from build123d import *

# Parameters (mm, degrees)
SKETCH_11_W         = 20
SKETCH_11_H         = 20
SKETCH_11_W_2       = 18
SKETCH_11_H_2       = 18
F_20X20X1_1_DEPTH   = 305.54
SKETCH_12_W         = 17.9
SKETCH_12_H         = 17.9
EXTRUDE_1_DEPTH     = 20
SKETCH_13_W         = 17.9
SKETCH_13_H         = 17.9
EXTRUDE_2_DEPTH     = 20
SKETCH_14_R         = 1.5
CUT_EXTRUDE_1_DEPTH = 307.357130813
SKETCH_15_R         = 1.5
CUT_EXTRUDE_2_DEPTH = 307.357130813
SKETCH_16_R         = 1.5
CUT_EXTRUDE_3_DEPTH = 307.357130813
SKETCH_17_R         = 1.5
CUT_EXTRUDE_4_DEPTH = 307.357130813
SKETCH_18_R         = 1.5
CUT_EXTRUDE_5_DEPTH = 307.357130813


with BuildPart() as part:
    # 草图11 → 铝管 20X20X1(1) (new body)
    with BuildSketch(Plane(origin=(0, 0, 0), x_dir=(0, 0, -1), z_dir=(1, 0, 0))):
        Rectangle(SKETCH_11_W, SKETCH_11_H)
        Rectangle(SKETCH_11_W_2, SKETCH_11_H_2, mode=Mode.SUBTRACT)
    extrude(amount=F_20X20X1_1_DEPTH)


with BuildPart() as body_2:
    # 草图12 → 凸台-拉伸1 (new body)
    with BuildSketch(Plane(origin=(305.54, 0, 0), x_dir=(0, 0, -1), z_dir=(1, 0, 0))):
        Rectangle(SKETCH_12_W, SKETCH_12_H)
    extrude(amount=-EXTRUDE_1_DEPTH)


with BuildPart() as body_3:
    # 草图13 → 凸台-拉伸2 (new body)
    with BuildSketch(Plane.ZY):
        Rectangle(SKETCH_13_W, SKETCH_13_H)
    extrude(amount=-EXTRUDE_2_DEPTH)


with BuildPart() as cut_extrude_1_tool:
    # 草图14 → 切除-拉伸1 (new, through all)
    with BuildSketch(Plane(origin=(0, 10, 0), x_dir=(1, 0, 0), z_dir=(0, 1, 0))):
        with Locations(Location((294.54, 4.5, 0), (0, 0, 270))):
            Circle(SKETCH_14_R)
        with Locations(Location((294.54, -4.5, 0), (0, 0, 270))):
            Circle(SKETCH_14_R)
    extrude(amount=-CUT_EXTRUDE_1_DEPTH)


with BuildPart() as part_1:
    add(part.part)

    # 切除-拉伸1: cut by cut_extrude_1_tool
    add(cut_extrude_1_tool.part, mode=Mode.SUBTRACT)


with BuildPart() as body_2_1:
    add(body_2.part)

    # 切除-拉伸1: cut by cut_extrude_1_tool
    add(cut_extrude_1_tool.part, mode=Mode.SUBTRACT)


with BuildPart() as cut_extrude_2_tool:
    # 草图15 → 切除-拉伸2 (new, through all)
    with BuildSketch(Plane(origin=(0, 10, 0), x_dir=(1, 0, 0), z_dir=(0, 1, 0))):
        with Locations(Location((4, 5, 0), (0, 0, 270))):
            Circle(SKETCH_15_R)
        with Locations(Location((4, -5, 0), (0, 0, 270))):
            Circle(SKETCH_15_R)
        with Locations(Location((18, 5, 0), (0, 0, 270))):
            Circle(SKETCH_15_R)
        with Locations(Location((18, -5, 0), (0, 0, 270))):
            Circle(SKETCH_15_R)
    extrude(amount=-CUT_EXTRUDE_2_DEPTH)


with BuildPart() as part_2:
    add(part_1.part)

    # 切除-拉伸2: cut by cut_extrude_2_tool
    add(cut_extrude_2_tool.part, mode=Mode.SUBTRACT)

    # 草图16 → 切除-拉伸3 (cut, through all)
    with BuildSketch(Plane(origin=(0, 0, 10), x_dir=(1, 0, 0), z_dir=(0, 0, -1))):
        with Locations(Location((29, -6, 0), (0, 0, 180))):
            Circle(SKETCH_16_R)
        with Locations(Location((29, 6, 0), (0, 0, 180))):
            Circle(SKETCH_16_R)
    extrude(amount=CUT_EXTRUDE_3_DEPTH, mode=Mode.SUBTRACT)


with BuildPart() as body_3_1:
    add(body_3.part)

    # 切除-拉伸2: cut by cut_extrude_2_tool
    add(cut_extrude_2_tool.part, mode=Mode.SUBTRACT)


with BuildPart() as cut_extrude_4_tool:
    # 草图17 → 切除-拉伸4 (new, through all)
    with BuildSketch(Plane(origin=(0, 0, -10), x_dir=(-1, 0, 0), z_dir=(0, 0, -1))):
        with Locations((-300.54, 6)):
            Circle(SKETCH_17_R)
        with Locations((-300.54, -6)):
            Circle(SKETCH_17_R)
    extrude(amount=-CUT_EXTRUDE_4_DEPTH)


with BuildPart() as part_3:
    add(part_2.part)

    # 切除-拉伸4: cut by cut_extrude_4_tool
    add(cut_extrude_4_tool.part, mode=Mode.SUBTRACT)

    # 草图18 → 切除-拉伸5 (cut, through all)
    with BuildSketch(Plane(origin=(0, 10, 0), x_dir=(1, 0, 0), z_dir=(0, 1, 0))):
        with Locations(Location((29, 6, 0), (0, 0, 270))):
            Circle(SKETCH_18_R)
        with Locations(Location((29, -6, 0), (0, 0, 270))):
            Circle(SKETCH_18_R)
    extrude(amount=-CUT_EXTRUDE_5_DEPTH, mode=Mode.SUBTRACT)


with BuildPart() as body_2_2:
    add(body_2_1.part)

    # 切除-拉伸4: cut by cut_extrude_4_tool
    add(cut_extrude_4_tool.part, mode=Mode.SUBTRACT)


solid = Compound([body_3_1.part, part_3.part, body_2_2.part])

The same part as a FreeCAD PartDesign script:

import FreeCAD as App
import Part
import Sketcher

V = App.Vector

doc = App.newDocument("Part")
params = doc.addObject("Spreadsheet::Sheet", "Params")
for row, (alias, value) in enumerate([
    ("sketch1_width", "20 mm"),
    ("sketch1_width2", "18 mm"),
    ("pad1_length", "305.54 mm"),
    ("sketch2_width", "17.9 mm"),
    ("pad2_length", "20 mm"),
    ("sketch3_width", "17.9 mm"),
    ("pad3_length", "20 mm"),
    ("sketch4_diameter", "3 mm"),
    ("pad4_length", "307.357131 mm"),
    ("sketch5_diameter", "3 mm"),
    ("pad5_length", "307.357131 mm"),
    ("sketch6_diameter", "3 mm"),
    ("sketch7_diameter", "3 mm"),
    ("pad6_length", "307.357131 mm"),
    ("sketch8_diameter", "3 mm"),
], start=1):
    params.set(f"A{row}", alias)
    params.set(f"B{row}", "=" + value)
    params.setAlias(f"B{row}", alias)

body = doc.addObject("PartDesign::Body", "Body")

# Sketch on YZ plane
sketch1 = doc.addObject("Sketcher::SketchObject", "Sketch")
body.addObject(sketch1)
sketch1.AttachmentSupport = (doc.YZ_Plane, [""])
sketch1.MapMode = "FlatFace"
sketch1.addGeometry(Part.LineSegment(V(10, 10, 0), V(-10, 10, 0)), False)
sketch1.addGeometry(Part.LineSegment(V(-10, 10, 0), V(-10, -10, 0)), False)
sketch1.addGeometry(Part.LineSegment(V(-10, -10, 0), V(10, -10, 0)), False)
sketch1.addGeometry(Part.LineSegment(V(10, -10, 0), V(10, 10, 0)), False)
sketch1.addGeometry(Part.LineSegment(V(-9, -9, 0), V(-9, 9, 0)), False)
sketch1.addGeometry(Part.LineSegment(V(-9, 9, 0), V(9, 9, 0)), False)
sketch1.addGeometry(Part.LineSegment(V(9, 9, 0), V(9, -9, 0)), False)
sketch1.addGeometry(Part.LineSegment(V(9, -9, 0), V(-9, -9, 0)), False)
sketch1.addConstraint(Sketcher.Constraint("Coincident", 0, 2, 1, 1))
sketch1.addConstraint(Sketcher.Constraint("Coincident", 1, 2, 2, 1))
sketch1.addConstraint(Sketcher.Constraint("Coincident", 2, 2, 3, 1))
sketch1.addConstraint(Sketcher.Constraint("Coincident", 3, 2, 0, 1))
sketch1.addConstraint(Sketcher.Constraint("Coincident", 4, 2, 5, 1))
sketch1.addConstraint(Sketcher.Constraint("Coincident", 5, 2, 6, 1))
sketch1.addConstraint(Sketcher.Constraint("Coincident", 6, 2, 7, 1))
sketch1.addConstraint(Sketcher.Constraint("Coincident", 7, 2, 4, 1))
sketch1.addConstraint(Sketcher.Constraint("Horizontal", 0))
sketch1.addConstraint(Sketcher.Constraint("Vertical", 1))
sketch1.addConstraint(Sketcher.Constraint("Horizontal", 2))
sketch1.addConstraint(Sketcher.Constraint("Vertical", 3))
sketch1.addConstraint(Sketcher.Constraint("Vertical", 4))
sketch1.addConstraint(Sketcher.Constraint("Horizontal", 5))
sketch1.addConstraint(Sketcher.Constraint("Vertical", 6))
sketch1.addConstraint(Sketcher.Constraint("Horizontal", 7))
sketch1.addConstraint(Sketcher.Constraint("Symmetric", 0, 2, 2, 2, -1, 1))
sketch1.addConstraint(Sketcher.Constraint("Symmetric", 4, 2, 6, 2, -1, 1))
sketch1.addConstraint(Sketcher.Constraint("Equal", 2, 1))
sketch1.addConstraint(Sketcher.Constraint("Equal", 7, 4))
sketch1.addConstraint(Sketcher.Constraint("DistanceX", 0, 2, 0, 1, 20.0))
sketch1.addConstraint(Sketcher.Constraint("DistanceX", 5, 1, 5, 2, 18.0))
sketch1.setExpression("Constraints[20]", "Params.sketch1_width")
sketch1.setExpression("Constraints[21]", "Params.sketch1_width2")
pad1 = doc.addObject("PartDesign::Pad", "Pad")
body.addObject(pad1)
pad1.Profile = sketch1
pad1.setExpression("Length", "Params.pad1_length")
body2 = doc.addObject("PartDesign::Body", "Body001")

# Sketch on YZ plane
sketch2 = doc.addObject("Sketcher::SketchObject", "Sketch001")
body2.addObject(sketch2)
sketch2.AttachmentSupport = (doc.getObject("YZ_Plane001"), [""])
sketch2.MapMode = "FlatFace"
sketch2.AttachmentOffset = App.Placement(V(0, 0, 305.54), App.Rotation())
sketch2.addGeometry(Part.LineSegment(V(9, 9, 0), V(-9, 9, 0)), False)
sketch2.addGeometry(Part.LineSegment(V(-9, 9, 0), V(-9, -9, 0)), False)
sketch2.addGeometry(Part.LineSegment(V(-9, -9, 0), V(9, -9, 0)), False)
sketch2.addGeometry(Part.LineSegment(V(9, -9, 0), V(9, 9, 0)), False)
sketch2.addConstraint(Sketcher.Constraint("Coincident", 0, 2, 1, 1))
sketch2.addConstraint(Sketcher.Constraint("Coincident", 1, 2, 2, 1))
sketch2.addConstraint(Sketcher.Constraint("Coincident", 2, 2, 3, 1))
sketch2.addConstraint(Sketcher.Constraint("Coincident", 3, 2, 0, 1))
sketch2.addConstraint(Sketcher.Constraint("Horizontal", 0))
sketch2.addConstraint(Sketcher.Constraint("Vertical", 1))
sketch2.addConstraint(Sketcher.Constraint("Horizontal", 2))
sketch2.addConstraint(Sketcher.Constraint("Vertical", 3))
sketch2.addConstraint(Sketcher.Constraint("Symmetric", 0, 2, 2, 2, -1, 1))
sketch2.addConstraint(Sketcher.Constraint("Equal", 2, 1))
sketch2.addConstraint(Sketcher.Constraint("DistanceX", 0, 2, 0, 1, 17.9))
sketch2.setExpression("Constraints[10]", "Params.sketch2_width")
pad2 = doc.addObject("PartDesign::Pad", "Pad001")
body2.addObject(pad2)
pad2.Profile = sketch2
pad2.setExpression("Length", "Params.pad2_length")
pad2.Reversed = True
body3 = doc.addObject("PartDesign::Body", "Body002")

# Sketch on YZ plane
sketch3 = doc.addObject("Sketcher::SketchObject", "Sketch002")
body3.addObject(sketch3)
sketch3.AttachmentSupport = (doc.getObject("YZ_Plane002"), [""])
sketch3.MapMode = "FlatFace"
sketch3.addGeometry(Part.LineSegment(V(9, -9, 0), V(-9, -9, 0)), False)
sketch3.addGeometry(Part.LineSegment(V(-9, -9, 0), V(-9, 9, 0)), False)
sketch3.addGeometry(Part.LineSegment(V(-9, 9, 0), V(9, 9, 0)), False)
sketch3.addGeometry(Part.LineSegment(V(9, 9, 0), V(9, -9, 0)), False)
sketch3.addConstraint(Sketcher.Constraint("Coincident", 0, 2, 1, 1))
sketch3.addConstraint(Sketcher.Constraint("Coincident", 1, 2, 2, 1))
sketch3.addConstraint(Sketcher.Constraint("Coincident", 2, 2, 3, 1))
sketch3.addConstraint(Sketcher.Constraint("Coincident", 3, 2, 0, 1))
sketch3.addConstraint(Sketcher.Constraint("Horizontal", 0))
sketch3.addConstraint(Sketcher.Constraint("Vertical", 1))
sketch3.addConstraint(Sketcher.Constraint("Horizontal", 2))
sketch3.addConstraint(Sketcher.Constraint("Vertical", 3))
sketch3.addConstraint(Sketcher.Constraint("Symmetric", 0, 2, 2, 2, -1, 1))
sketch3.addConstraint(Sketcher.Constraint("Equal", 2, 1))
sketch3.addConstraint(Sketcher.Constraint("DistanceX", 0, 2, 0, 1, 17.9))
sketch3.setExpression("Constraints[10]", "Params.sketch3_width")
pad3 = doc.addObject("PartDesign::Pad", "Pad002")
body3.addObject(pad3)
pad3.Profile = sketch3
pad3.setExpression("Length", "Params.pad3_length")
body4 = doc.addObject("PartDesign::Body", "Body003")
body4.AllowCompound = True

# Sketch on XZ plane
sketch4 = doc.addObject("Sketcher::SketchObject", "Sketch003")
body4.addObject(sketch4)
sketch4.AttachmentSupport = (doc.getObject("XZ_Plane003"), [""])
sketch4.MapMode = "FlatFace"
sketch4.AttachmentOffset = App.Placement(V(0, 0, -10), App.Rotation())
sketch4.addGeometry(Part.Circle(V(294.5, -4.5, 0), V(0, 0, 1), 1.5), False)
sketch4.addGeometry(Part.Circle(V(294.5, 4.5, 0), V(0, 0, 1), 1.5), False)
sketch4.addConstraint(Sketcher.Constraint("Equal", 0, 1))
sketch4.addConstraint(Sketcher.Constraint("Symmetric", 0, 3, 1, 3, -1))
sketch4.addConstraint(Sketcher.Constraint("Diameter", 0, 3.0))
sketch4.addConstraint(Sketcher.Constraint("DistanceY", 0, 3, 1, 3, 9.0))
sketch4.addConstraint(Sketcher.Constraint("DistanceX", -1, 1, 0, 3, 294.54))
sketch4.setExpression("Constraints[2]", "Params.sketch4_diameter")
pad4 = doc.addObject("PartDesign::Pad", "Pad003")
body4.addObject(pad4)
pad4.Profile = sketch4
pad4.setExpression("Length", "Params.pad4_length")
doc.recompute()

body5 = doc.addObject("PartDesign::Body", "Body004")
body5.BaseFeature = body4
boolean = doc.addObject("PartDesign::Boolean", "Boolean")
body.addObject(boolean)
boolean.Type = "Cut"
boolean.addObjects([body5])
doc.recompute()

boolean2 = doc.addObject("PartDesign::Boolean", "Boolean001")
body2.addObject(boolean2)
boolean2.Type = "Cut"
boolean2.addObjects([body4])
body6 = doc.addObject("PartDesign::Body", "Body005")
body6.AllowCompound = True

# Sketch on XZ plane
sketch5 = doc.addObject("Sketcher::SketchObject", "Sketch004")
body6.addObject(sketch5)
sketch5.AttachmentSupport = (doc.getObject("XZ_Plane005"), [""])
sketch5.MapMode = "FlatFace"
sketch5.AttachmentOffset = App.Placement(V(0, 0, -10), App.Rotation())
sketch5.addGeometry(Part.Circle(V(4, -5, 0), V(0, 0, 1), 1.5), False)
sketch5.addGeometry(Part.Circle(V(4, 5, 0), V(0, 0, 1), 1.5), False)
sketch5.addGeometry(Part.Circle(V(18, -5, 0), V(0, 0, 1), 1.5), False)
sketch5.addGeometry(Part.Circle(V(18, 5, 0), V(0, 0, 1), 1.5), False)
sketch5.addConstraint(Sketcher.Constraint("Equal", 0, 1))
sketch5.addConstraint(Sketcher.Constraint("Equal", 1, 2))
sketch5.addConstraint(Sketcher.Constraint("Equal", 2, 3))
sketch5.addConstraint(Sketcher.Constraint("Symmetric", 0, 3, 1, 3, -1))
sketch5.addConstraint(Sketcher.Constraint("Symmetric", 2, 3, 3, 3, -1))
sketch5.addConstraint(Sketcher.Constraint("Horizontal", 0, 3, 2, 3))
sketch5.addConstraint(Sketcher.Constraint("Diameter", 0, 3.0))
sketch5.addConstraint(Sketcher.Constraint("DistanceX", -1, 1, 0, 3, 4.0))
sketch5.addConstraint(Sketcher.Constraint("DistanceY", 0, 3, -1, 1, 5.0))
sketch5.addConstraint(Sketcher.Constraint("DistanceX", -1, 1, 2, 3, 18.0))
sketch5.setExpression("Constraints[6]", "Params.sketch5_diameter")
pad5 = doc.addObject("PartDesign::Pad", "Pad004")
body6.addObject(pad5)
pad5.Profile = sketch5
pad5.setExpression("Length", "Params.pad5_length")
doc.recompute()

body7 = doc.addObject("PartDesign::Body", "Body006")
body7.BaseFeature = body6
boolean3 = doc.addObject("PartDesign::Boolean", "Boolean002")
body.addObject(boolean3)
boolean3.Type = "Cut"
boolean3.addObjects([body7])
doc.recompute()

# Sketch on XY plane
sketch6 = doc.addObject("Sketcher::SketchObject", "Sketch005")
body.addObject(sketch6)
sketch6.AttachmentSupport = (doc.XY_Plane, [""])
sketch6.MapMode = "FlatFace"
sketch6.AttachmentOffset = App.Placement(V(0, 0, 10), App.Rotation())
sketch6.addGeometry(Part.Circle(V(29, 6, 0), V(0, 0, 1), 1.5), False)
sketch6.addGeometry(Part.Circle(V(29, -6, 0), V(0, 0, 1), 1.5), False)
sketch6.addConstraint(Sketcher.Constraint("Equal", 0, 1))
sketch6.addConstraint(Sketcher.Constraint("Symmetric", 0, 3, 1, 3, -1))
sketch6.addConstraint(Sketcher.Constraint("Diameter", 0, 3.0))
sketch6.addConstraint(Sketcher.Constraint("DistanceX", -1, 1, 0, 3, 29.0))
sketch6.addConstraint(Sketcher.Constraint("DistanceY", -1, 1, 0, 3, 6.0))
sketch6.setExpression("Constraints[2]", "Params.sketch6_diameter")
pocket1 = doc.addObject("PartDesign::Pocket", "Pocket")
body.addObject(pocket1)
pocket1.Profile = sketch6
pocket1.Type = "ThroughAll"
doc.recompute()

boolean4 = doc.addObject("PartDesign::Boolean", "Boolean003")
body3.addObject(boolean4)
boolean4.Type = "Cut"
boolean4.addObjects([body6])
body8 = doc.addObject("PartDesign::Body", "Body007")
body8.AllowCompound = True

# Sketch on XY plane
sketch7 = doc.addObject("Sketcher::SketchObject", "Sketch006")
body8.addObject(sketch7)
sketch7.AttachmentSupport = (doc.getObject("XY_Plane007"), [""])
sketch7.MapMode = "FlatFace"
sketch7.AttachmentOffset = App.Placement(V(0, 0, -10), App.Rotation())
sketch7.addGeometry(Part.Circle(V(300.5, 6, 0), V(0, 0, 1), 1.5), False)
sketch7.addGeometry(Part.Circle(V(300.5, -6, 0), V(0, 0, 1), 1.5), False)
sketch7.addConstraint(Sketcher.Constraint("Equal", 0, 1))
sketch7.addConstraint(Sketcher.Constraint("Symmetric", 0, 3, 1, 3, -1))
sketch7.addConstraint(Sketcher.Constraint("Diameter", 0, 3.0))
sketch7.addConstraint(Sketcher.Constraint("DistanceY", -1, 1, 0, 3, 6.0))
sketch7.addConstraint(Sketcher.Constraint("DistanceX", -1, 1, 0, 3, 300.54))
sketch7.setExpression("Constraints[2]", "Params.sketch7_diameter")
pad6 = doc.addObject("PartDesign::Pad", "Pad005")
body8.addObject(pad6)
pad6.Profile = sketch7
pad6.setExpression("Length", "Params.pad6_length")
doc.recompute()

body9 = doc.addObject("PartDesign::Body", "Body008")
body9.BaseFeature = body8
boolean5 = doc.addObject("PartDesign::Boolean", "Boolean004")
body.addObject(boolean5)
boolean5.Type = "Cut"
boolean5.addObjects([body9])
doc.recompute()

# Sketch on XZ plane
sketch8 = doc.addObject("Sketcher::SketchObject", "Sketch007")
body.addObject(sketch8)
sketch8.AttachmentSupport = (doc.XZ_Plane, [""])
sketch8.MapMode = "FlatFace"
sketch8.AttachmentOffset = App.Placement(V(0, 0, -10), App.Rotation())
sketch8.addGeometry(Part.Circle(V(29, -6, 0), V(0, 0, 1), 1.5), False)
sketch8.addGeometry(Part.Circle(V(29, 6, 0), V(0, 0, 1), 1.5), False)
sketch8.addConstraint(Sketcher.Constraint("Equal", 0, 1))
sketch8.addConstraint(Sketcher.Constraint("Symmetric", 0, 3, 1, 3, -1))
sketch8.addConstraint(Sketcher.Constraint("Diameter", 0, 3.0))
sketch8.addConstraint(Sketcher.Constraint("DistanceX", -1, 1, 0, 3, 29.0))
sketch8.addConstraint(Sketcher.Constraint("DistanceY", 0, 3, -1, 1, 6.0))
sketch8.setExpression("Constraints[2]", "Params.sketch8_diameter")
pocket2 = doc.addObject("PartDesign::Pocket", "Pocket001")
body.addObject(pocket2)
pocket2.Profile = sketch8
pocket2.Type = "ThroughAll"
pocket2.Reversed = True
doc.recompute()

boolean6 = doc.addObject("PartDesign::Boolean", "Boolean005")
body2.addObject(boolean6)
boolean6.Type = "Cut"
boolean6.addObjects([body8])

doc.recompute()
